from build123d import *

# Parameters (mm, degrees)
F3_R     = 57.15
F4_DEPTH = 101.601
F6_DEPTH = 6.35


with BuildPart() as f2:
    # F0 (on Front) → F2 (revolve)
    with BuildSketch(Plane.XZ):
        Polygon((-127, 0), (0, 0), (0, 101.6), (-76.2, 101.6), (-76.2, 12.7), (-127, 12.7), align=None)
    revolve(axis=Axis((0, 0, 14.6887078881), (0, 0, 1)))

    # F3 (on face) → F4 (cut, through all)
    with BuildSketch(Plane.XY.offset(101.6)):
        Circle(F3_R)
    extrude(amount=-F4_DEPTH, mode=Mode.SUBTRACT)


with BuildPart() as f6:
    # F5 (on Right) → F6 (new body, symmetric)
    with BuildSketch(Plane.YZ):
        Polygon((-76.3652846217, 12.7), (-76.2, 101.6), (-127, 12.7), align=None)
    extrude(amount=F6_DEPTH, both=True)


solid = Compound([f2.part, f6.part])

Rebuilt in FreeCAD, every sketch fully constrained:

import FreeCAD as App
import Part
import Sketcher
from FreeCAD import Vector
Q = App.Units.Quantity


def add_polygon(sketch, points):
    """Adds a closed chain of lines whose ends are joined by coincident constraints."""
    first, n = sketch.GeometryCount, len(points)
    for a, b in zip(points, points[1:] + points[:1]):
        sketch.addGeometry(Part.LineSegment(App.Vector(*a, 0), App.Vector(*b, 0)), False)
    for i in range(n):
        sketch.addConstraint(Sketcher.Constraint("Coincident", first + i, 2, first + (i + 1) % n, 1))

doc = App.newDocument("Part")
params = doc.addObject("Spreadsheet::Sheet", "Params")
for row, (alias, value) in enumerate([
    ("sketch1_width", "5 in"),
    ("sketch1_width2", "3 in"),
    ("sketch1_height", "4 in"),
    ("sketch1_height2", "3.5 in"),
    ("revolution_angle", "360 deg"),
    ("sketch2_diameter", "4.5 in"),
    ("pad1_length", "0.5 in"),
], start=1):
    params.set(f"A{row}", alias)
    params.set(f"B{row}", "=" + value)
    params.setAlias(f"B{row}", alias)

body = doc.addObject("PartDesign::Body", "Body")

sketch1 = doc.addObject("Sketcher::SketchObject", "Sketch")
body.addObject(sketch1)
sketch1.AttachmentSupport = (doc.XZ_Plane, [""])
sketch1.MapMode = "FlatFace"
add_polygon(sketch1, [(-127, 0), (0, 0), (0, 102), (-76, 102), (-76, 13), (-127, 13)])
sketch1.addConstraint(Sketcher.Constraint("Horizontal", 0))
sketch1.addConstraint(Sketcher.Constraint("Vertical", 1))
sketch1.addConstraint(Sketcher.Constraint("Horizontal", 2))
sketch1.addConstraint(Sketcher.Constraint("Vertical", 3))
sketch1.addConstraint(Sketcher.Constraint("Horizontal", 4))
sketch1.addConstraint(Sketcher.Constraint("Vertical", 5))
sketch1.addConstraint(Sketcher.Constraint("Coincident", 0, 2, -1, 1))
sketch1.addConstraint(Sketcher.Constraint("DistanceX", 0, 1, 0, 2, Q("5 in")))
sketch1.addConstraint(Sketcher.Constraint("DistanceX", 2, 2, 2, 1, Q("3 in")))
sketch1.addConstraint(Sketcher.Constraint("DistanceY", 1, 1, 1, 2, Q("4 in")))
sketch1.addConstraint(Sketcher.Constraint("DistanceY", 3, 2, 3, 1, Q("3.5 in")))
sketch1.setExpression("Constraints[13]", "Params.sketch1_width")
sketch1.setExpression("Constraints[14]", "Params.sketch1_width2")
sketch1.setExpression("Constraints[15]", "Params.sketch1_height")
sketch1.setExpression("Constraints[16]", "Params.sketch1_height2")
revolution = doc.addObject("PartDesign::Revolution", "Revolution")
body.addObject(revolution)
revolution.Profile = sketch1
revolution.ReferenceAxis = (sketch1, ["V_Axis"])
revolution.setExpression("Angle", "Params.revolution_angle")

sketch2 = doc.addObject("Sketcher::SketchObject", "Sketch001")
body.addObject(sketch2)
sketch2.AttachmentSupport = (doc.XY_Plane, [""])
sketch2.MapMode = "FlatFace"
sketch2.AttachmentOffset = App.Placement(Vector(0, 0, 4 * 25.4), App.Rotation())
sketch2.addGeometry(Part.Circle(Vector(0, 0, 0), Vector(0, 0, 1), 57), False)
sketch2.addConstraint(Sketcher.Constraint("Coincident", 0, 3, -1, 1))
sketch2.addConstraint(Sketcher.Constraint("Diameter", 0, Q("4.5 in")))
sketch2.setExpression("Constraints[1]", "Params.sketch2_diameter")
pocket1 = doc.addObject("PartDesign::Pocket", "Pocket")
body.addObject(pocket1)
pocket1.Profile = sketch2
pocket1.Type = "ThroughAll"
body2 = doc.addObject("PartDesign::Body", "Body001")

sketch3 = doc.addObject("Sketcher::SketchObject", "Sketch002")
body2.addObject(sketch3)
sketch3.AttachmentSupport = (doc.getObject("YZ_Plane001"), [""])
sketch3.MapMode = "FlatFace"
add_polygon(sketch3, [(-76, 13), (-76, 102), (-127, 13)])
sketch3.addConstraint(Sketcher.Constraint("Horizontal", 2))
sketch3.addConstraint(Sketcher.Constraint("DistanceX", 0, 2, -1, 1, Q("3 in")))
sketch3.addConstraint(Sketcher.Constraint("DistanceY", -1, 1, 0, 2, Q("4 in")))
sketch3.addConstraint(Sketcher.Constraint("DistanceX", 1, 2, -1, 1, Q("5 in")))
sketch3.addConstraint(Sketcher.Constraint("DistanceY", -1, 1, 1, 2, Q("0.5 in")))
sketch3.addConstraint(Sketcher.Constraint("DistanceX", 2, 1, 2, 2, Q("50.634715 mm")))
pad1 = doc.addObject("PartDesign::Pad", "Pad")
body2.addObject(pad1)
pad1.Profile = sketch3
pad1.setExpression("Length", "Params.pad1_length")
pad1.Midplane = True

doc.recompute()
